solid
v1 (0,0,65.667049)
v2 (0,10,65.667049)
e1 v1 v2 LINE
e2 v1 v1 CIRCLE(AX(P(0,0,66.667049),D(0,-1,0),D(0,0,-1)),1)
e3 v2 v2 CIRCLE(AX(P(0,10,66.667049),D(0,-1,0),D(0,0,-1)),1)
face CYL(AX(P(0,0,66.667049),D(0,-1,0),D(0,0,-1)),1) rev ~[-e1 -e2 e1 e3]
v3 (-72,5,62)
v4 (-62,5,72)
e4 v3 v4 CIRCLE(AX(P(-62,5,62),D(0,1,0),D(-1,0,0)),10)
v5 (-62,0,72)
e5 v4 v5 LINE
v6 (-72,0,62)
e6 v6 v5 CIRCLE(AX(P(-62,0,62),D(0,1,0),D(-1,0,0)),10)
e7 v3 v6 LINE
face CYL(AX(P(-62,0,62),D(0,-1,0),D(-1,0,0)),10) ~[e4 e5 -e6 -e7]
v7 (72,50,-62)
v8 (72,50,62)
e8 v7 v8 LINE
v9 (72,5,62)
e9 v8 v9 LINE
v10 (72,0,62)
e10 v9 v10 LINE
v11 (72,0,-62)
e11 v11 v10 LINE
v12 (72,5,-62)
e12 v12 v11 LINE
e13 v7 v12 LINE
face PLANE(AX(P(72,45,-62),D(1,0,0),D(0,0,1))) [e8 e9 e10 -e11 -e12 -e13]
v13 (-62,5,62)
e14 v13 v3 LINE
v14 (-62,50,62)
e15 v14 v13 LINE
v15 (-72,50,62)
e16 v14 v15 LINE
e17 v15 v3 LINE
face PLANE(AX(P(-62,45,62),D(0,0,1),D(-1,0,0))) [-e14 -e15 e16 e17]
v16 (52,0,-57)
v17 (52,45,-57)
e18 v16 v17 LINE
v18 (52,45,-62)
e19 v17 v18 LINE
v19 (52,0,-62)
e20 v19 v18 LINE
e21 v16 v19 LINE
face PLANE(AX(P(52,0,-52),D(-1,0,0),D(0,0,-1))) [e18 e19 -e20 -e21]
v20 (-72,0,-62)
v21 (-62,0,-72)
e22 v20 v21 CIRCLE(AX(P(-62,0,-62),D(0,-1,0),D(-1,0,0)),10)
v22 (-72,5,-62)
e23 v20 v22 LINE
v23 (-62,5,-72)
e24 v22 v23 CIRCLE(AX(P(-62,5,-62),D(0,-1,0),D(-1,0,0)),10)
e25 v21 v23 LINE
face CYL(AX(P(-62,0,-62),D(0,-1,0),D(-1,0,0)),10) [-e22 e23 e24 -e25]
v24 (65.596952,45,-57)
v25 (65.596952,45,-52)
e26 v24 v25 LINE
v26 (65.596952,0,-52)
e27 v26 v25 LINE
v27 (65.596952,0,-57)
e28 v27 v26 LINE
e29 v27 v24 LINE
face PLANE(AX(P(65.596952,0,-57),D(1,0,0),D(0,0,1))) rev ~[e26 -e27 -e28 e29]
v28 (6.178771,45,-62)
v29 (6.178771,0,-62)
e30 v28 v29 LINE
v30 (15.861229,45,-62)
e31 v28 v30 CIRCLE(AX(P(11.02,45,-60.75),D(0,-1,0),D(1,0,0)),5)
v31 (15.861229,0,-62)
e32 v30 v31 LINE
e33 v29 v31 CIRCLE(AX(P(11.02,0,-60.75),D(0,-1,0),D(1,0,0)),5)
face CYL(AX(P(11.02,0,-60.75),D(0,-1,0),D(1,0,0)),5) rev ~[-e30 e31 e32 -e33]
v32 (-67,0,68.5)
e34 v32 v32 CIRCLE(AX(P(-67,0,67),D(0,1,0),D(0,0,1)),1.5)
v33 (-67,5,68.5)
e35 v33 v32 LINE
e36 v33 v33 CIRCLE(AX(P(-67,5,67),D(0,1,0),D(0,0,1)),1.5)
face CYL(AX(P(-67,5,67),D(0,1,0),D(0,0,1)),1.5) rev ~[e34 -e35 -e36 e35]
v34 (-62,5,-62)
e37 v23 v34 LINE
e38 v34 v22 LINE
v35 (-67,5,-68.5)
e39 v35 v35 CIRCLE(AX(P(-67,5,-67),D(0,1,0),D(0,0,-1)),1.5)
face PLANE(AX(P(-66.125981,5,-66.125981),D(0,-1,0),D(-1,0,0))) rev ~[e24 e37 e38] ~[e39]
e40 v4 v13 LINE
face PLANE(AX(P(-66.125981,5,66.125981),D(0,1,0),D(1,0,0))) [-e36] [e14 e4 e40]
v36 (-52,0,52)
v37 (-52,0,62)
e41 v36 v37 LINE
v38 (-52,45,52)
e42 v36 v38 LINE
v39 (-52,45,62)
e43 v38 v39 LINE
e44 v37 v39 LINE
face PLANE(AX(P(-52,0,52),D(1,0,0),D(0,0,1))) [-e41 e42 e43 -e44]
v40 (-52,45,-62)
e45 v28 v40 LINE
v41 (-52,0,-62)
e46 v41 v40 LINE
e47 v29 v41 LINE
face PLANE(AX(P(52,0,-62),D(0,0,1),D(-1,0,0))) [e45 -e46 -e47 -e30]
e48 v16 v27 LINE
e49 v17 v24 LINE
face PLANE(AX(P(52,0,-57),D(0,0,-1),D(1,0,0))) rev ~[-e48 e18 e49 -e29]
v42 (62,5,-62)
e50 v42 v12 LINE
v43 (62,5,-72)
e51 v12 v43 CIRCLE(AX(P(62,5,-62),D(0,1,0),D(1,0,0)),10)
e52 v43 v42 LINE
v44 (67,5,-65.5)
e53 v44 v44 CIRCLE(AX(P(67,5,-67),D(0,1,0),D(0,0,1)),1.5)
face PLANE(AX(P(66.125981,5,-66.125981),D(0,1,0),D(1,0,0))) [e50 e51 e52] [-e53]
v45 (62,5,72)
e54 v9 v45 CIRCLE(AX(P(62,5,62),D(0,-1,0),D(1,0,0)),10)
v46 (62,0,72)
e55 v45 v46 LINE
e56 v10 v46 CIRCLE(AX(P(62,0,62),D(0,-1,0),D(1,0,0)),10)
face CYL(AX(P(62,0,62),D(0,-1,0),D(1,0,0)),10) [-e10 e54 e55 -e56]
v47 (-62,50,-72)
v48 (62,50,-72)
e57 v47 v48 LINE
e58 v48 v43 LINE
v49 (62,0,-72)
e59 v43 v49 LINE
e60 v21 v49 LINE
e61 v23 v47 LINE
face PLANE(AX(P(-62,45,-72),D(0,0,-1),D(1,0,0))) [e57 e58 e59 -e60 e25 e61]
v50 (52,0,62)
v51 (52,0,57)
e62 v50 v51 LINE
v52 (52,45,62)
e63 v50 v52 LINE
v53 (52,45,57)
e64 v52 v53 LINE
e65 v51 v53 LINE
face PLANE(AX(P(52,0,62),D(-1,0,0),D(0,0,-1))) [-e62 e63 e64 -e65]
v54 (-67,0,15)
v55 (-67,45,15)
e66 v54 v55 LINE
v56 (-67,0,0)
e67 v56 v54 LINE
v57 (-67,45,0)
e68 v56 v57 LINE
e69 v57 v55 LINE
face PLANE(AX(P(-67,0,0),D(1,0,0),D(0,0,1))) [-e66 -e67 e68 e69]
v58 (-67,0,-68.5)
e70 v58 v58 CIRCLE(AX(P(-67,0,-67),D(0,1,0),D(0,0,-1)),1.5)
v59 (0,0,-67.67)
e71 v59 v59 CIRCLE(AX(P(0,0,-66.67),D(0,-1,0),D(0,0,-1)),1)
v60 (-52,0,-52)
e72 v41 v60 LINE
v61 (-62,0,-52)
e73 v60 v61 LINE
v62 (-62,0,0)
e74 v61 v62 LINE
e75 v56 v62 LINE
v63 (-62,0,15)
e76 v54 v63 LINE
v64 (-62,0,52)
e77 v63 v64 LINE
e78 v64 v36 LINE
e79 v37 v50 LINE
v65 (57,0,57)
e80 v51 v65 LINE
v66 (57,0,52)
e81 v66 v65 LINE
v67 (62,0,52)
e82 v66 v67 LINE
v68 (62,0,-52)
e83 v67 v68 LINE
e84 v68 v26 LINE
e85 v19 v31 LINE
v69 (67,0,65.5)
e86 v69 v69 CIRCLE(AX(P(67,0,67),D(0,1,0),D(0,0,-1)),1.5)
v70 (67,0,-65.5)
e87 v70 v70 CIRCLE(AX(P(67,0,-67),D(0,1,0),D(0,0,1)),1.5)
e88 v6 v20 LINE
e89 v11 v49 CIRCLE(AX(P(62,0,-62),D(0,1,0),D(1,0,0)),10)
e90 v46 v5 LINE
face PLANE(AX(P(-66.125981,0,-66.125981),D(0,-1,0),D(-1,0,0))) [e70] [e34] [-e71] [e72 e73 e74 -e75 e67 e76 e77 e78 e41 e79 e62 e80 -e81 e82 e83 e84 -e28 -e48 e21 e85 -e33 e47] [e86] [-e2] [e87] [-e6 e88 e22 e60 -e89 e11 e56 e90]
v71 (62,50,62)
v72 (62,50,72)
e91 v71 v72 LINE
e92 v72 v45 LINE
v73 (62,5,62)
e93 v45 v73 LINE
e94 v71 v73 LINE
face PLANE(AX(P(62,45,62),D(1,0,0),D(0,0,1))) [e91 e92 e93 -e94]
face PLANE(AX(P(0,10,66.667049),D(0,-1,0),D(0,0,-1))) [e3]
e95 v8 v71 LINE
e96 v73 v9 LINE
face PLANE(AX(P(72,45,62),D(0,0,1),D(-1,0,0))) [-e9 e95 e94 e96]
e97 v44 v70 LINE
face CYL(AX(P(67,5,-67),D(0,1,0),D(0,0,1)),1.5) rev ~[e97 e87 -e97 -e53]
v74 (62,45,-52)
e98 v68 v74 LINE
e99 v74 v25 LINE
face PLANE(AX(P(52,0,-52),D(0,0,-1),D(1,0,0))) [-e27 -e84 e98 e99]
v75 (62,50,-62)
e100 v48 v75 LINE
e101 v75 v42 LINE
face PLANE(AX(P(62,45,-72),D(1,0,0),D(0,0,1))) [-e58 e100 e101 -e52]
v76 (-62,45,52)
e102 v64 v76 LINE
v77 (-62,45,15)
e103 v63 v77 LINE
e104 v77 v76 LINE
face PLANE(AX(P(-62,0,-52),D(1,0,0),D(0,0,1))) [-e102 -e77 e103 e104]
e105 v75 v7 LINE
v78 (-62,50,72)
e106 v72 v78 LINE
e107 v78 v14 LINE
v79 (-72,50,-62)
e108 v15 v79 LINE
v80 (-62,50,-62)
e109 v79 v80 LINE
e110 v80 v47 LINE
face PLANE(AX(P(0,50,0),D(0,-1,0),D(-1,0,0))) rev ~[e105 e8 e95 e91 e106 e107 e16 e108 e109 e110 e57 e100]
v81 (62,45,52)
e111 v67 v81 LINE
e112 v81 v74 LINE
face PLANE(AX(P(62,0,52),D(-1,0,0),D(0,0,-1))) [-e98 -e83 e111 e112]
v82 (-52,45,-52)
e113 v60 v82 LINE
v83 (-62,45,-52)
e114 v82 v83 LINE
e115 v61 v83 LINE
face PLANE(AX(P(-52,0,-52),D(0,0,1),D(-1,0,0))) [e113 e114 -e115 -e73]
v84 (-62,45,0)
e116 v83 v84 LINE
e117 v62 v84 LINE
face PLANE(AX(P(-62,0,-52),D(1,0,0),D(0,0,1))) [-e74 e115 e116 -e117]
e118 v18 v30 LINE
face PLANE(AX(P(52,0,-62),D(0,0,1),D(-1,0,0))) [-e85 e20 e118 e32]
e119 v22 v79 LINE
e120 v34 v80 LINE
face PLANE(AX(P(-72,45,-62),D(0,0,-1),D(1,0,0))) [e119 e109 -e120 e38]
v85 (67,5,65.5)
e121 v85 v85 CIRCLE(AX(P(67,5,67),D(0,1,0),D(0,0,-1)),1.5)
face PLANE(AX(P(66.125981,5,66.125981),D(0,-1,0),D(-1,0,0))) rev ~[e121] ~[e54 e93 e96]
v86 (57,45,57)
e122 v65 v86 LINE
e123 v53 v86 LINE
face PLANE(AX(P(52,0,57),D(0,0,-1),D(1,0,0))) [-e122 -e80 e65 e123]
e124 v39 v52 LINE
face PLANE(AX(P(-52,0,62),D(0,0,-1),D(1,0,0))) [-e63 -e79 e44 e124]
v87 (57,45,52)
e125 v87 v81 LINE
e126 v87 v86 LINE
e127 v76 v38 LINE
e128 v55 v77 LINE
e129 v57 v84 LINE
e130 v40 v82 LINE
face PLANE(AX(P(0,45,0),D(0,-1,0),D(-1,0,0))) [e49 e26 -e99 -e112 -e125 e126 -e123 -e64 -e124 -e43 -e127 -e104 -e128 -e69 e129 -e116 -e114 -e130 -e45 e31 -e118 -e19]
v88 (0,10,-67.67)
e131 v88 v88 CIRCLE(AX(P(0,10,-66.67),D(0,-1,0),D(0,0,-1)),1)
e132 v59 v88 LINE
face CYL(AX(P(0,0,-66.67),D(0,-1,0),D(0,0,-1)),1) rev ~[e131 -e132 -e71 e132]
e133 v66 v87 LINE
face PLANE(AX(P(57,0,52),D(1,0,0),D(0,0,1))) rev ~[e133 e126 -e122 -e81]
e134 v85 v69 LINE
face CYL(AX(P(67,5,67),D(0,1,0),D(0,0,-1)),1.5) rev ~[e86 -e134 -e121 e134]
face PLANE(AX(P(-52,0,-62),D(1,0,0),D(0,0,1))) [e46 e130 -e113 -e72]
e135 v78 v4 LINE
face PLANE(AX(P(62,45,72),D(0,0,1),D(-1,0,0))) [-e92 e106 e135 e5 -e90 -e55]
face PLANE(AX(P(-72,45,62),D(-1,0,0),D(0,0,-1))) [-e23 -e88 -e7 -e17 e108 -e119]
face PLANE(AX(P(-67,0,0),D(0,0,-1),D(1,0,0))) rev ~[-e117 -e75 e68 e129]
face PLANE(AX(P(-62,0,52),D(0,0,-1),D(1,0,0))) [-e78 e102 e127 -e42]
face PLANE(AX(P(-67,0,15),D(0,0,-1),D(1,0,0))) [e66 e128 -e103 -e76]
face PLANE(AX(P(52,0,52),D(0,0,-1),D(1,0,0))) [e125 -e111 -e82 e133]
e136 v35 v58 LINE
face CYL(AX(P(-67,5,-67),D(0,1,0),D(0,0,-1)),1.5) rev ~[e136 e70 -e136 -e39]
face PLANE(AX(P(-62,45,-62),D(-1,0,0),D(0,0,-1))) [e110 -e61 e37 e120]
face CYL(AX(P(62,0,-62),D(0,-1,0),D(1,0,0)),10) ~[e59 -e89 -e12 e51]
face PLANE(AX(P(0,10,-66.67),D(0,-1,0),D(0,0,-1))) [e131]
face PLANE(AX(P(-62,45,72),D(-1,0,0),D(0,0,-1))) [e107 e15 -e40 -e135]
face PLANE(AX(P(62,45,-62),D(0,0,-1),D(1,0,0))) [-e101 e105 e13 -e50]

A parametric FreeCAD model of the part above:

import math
import FreeCAD as App
import Part
import Sketcher

V = App.Vector
Q = App.Units.Quantity


def add_polygon(sketch, points):
    """Adds a closed chain of lines whose ends are joined by coincident constraints."""
    first, n = sketch.GeometryCount, len(points)
    for a, b in zip(points, points[1:] + points[:1]):
        sketch.addGeometry(Part.LineSegment(App.Vector(*a, 0), App.Vector(*b, 0)), False)
    for i in range(n):
        sketch.addConstraint(Sketcher.Constraint("Coincident", first + i, 2, first + (i + 1) % n, 1))

doc = App.newDocument("Part")
body = doc.addObject("PartDesign::Body", "Body")

sketch1 = body.newObject("Sketcher::SketchObject", "Sketch")
sketch1.AttachmentSupport = (doc.getObject("XZ_Plane"), [""])
sketch1.MapMode = "FlatFace"
add_polygon(sketch1, [(62, -72), (-62, -72), (-62, -62), (-72, -62), (-72, 62), (-62, 62), (-62, 72), (62, 72), (62, 62), (72, 62), (72, -62), (62, -62)])
add_polygon(sketch1, [(-62, -52), (-52, -52), (-52, -62), (52, -62), (52, -52), (62, -52), (62, 52), (52, 52), (52, 62), (-52, 62), (-52, 52), (-62, 52)])
sketch1.addConstraint([
    Sketcher.Constraint("Horizontal", 0),
    Sketcher.Constraint("Vertical", 1),
    Sketcher.Constraint("Horizontal", 2),
    Sketcher.Constraint("Vertical", 3),
    Sketcher.Constraint("Horizontal", 4),
    Sketcher.Constraint("Vertical", 5),
    Sketcher.Constraint("Horizontal", 6),
    Sketcher.Constraint("Vertical", 7),
    Sketcher.Constraint("Horizontal", 8),
    Sketcher.Constraint("Vertical", 9),
    Sketcher.Constraint("Horizontal", 10),
    Sketcher.Constraint("Vertical", 11),
    Sketcher.Constraint("Horizontal", 12),
    Sketcher.Constraint("Vertical", 13),
    Sketcher.Constraint("Horizontal", 14),
    Sketcher.Constraint("Vertical", 15),
    Sketcher.Constraint("Horizontal", 16),
    Sketcher.Constraint("Vertical", 17),
    Sketcher.Constraint("Horizontal", 18),
    Sketcher.Constraint("Vertical", 19),
    Sketcher.Constraint("Horizontal", 20),
    Sketcher.Constraint("Vertical", 21),
    Sketcher.Constraint("Horizontal", 22),
    Sketcher.Constraint("Vertical", 23),
    Sketcher.Constraint("Symmetric", 0, 2, 6, 2, -1, 1),
    Sketcher.Constraint("Symmetric", 2, 2, 8, 2, -1, 1),
    Sketcher.Constraint("Symmetric", 4, 2, 10, 2, -1, 1),
    Sketcher.Constraint("Symmetric", 12, 2, 18, 2, -1, 1),
    Sketcher.Constraint("Symmetric", 14, 2, 20, 2, -1, 1),
    Sketcher.Constraint("Symmetric", 16, 2, 22, 2, -1, 1),
    Sketcher.Constraint("Symmetric", 4, 2, 7, 2, -2),
    Sketcher.Constraint("Symmetric", 12, 2, 15, 2, -2),
    Sketcher.Constraint("Horizontal", 10, 2, 13, 2),
    Sketcher.Constraint("Vertical", 11, 2, 16, 2),
    Sketcher.Constraint("Equal", 10, 12),
    Sketcher.Constraint("Equal", 22, 1),
    Sketcher.Constraint("Equal", 6, 3),
    Sketcher.Constraint("Equal", 11, 13),
    Sketcher.Constraint("DistanceX", 0, 2, 0, 1, Q("124 mm")),
    Sketcher.Constraint("DistanceX", 2, 2, 2, 1, Q("10 mm")),
])
pad1 = body.newObject("PartDesign::Pad", "Pad")
pad1.Profile = sketch1
pad1.Length = 45
pad1.Reversed = True

sketch2 = body.newObject("Sketcher::SketchObject", "Sketch001")
sketch2.AttachmentSupport = (doc.getObject("XZ_Plane"), [""])
sketch2.MapMode = "FlatFace"
sketch2.AttachmentOffset = App.Placement(V(0, 0, -45), App.Rotation())
add_polygon(sketch2, [(62, -72), (-62, -72), (-62, -62), (-72, -62), (-72, 62), (-62, 62), (-62, 72), (62, 72), (62, 62), (72, 62), (72, -62), (62, -62)])
sketch2.addConstraint([
    Sketcher.Constraint("Horizontal", 0),
    Sketcher.Constraint("Vertical", 1),
    Sketcher.Constraint("Horizontal", 2),
    Sketcher.Constraint("Vertical", 3),
    Sketcher.Constraint("Horizontal", 4),
    Sketcher.Constraint("Vertical", 5),
    Sketcher.Constraint("Horizontal", 6),
    Sketcher.Constraint("Vertical", 7),
    Sketcher.Constraint("Horizontal", 8),
    Sketcher.Constraint("Vertical", 9),
    Sketcher.Constraint("Horizontal", 10),
    Sketcher.Constraint("Vertical", 11),
    Sketcher.Constraint("Symmetric", 0, 2, 6, 2, -1, 1),
    Sketcher.Constraint("Symmetric", 2, 2, 8, 2, -1, 1),
    Sketcher.Constraint("Symmetric", 4, 2, 10, 2, -1, 1),
    Sketcher.Constraint("Symmetric", 4, 2, 7, 2, -2),
    Sketcher.Constraint("Equal", 10, 1),
    Sketcher.Constraint("Equal", 6, 3),
    Sketcher.Constraint("DistanceX", 0, 2, 0, 1, Q("124 mm")),
    Sketcher.Constraint("DistanceX", 2, 2, 2, 1, Q("10 mm")),
])
pad2 = body.newObject("PartDesign::Pad", "Pad001")
pad2.Profile = sketch2
pad2.Length = 5
pad2.Reversed = True

sketch3 = body.newObject("Sketcher::SketchObject", "Sketch002")
sketch3.AttachmentSupport = (doc.getObject("XZ_Plane"), [""])
sketch3.MapMode = "FlatFace"
add_polygon(sketch3, [(52, 57), (52, 52), (57, 52), (57, 57)])
add_polygon(sketch3, [(-67, 15), (-67, 0), (-62, 0), (-62, 15)])
add_polygon(sketch3, [(52, -52), (52, -57), (66, -57), (66, -52)])
sketch3.addConstraint([
    Sketcher.Constraint("Vertical", 0),
    Sketcher.Constraint("Horizontal", 1),
    Sketcher.Constraint("Vertical", 2),
    Sketcher.Constraint("Horizontal", 3),
    Sketcher.Constraint("Vertical", 4),
    Sketcher.Constraint("Horizontal", 5),
    Sketcher.Constraint("Vertical", 6),
    Sketcher.Constraint("Horizontal", 7),
    Sketcher.Constraint("Vertical", 8),
    Sketcher.Constraint("Horizontal", 9),
    Sketcher.Constraint("Vertical", 10),
    Sketcher.Constraint("Horizontal", 11),
    Sketcher.Constraint("Symmetric", 3, 2, 8, 2, -1),
    Sketcher.Constraint("PointOnObject", 4, 2, -1),
    Sketcher.Constraint("Equal", 3, 5),
    Sketcher.Constraint("Equal", 7, 0),
    Sketcher.Constraint("Equal", 2, 8),
    Sketcher.Constraint("DistanceX", 1, 1, 1, 2, Q("5 mm")),
    Sketcher.Constraint("DistanceY", 4, 2, 4, 1, Q("15 mm")),
    Sketcher.Constraint("DistanceX", -1, 1, 0, 2, Q("52 mm")),
    Sketcher.Constraint("DistanceY", -1, 1, 0, 2, Q("52 mm")),
    Sketcher.Constraint("DistanceX", 4, 2, -1, 1, Q("67 mm")),
    Sketcher.Constraint("DistanceX", 9, 1, 9, 2, Q("13.596952 mm")),
])
pocket1 = body.newObject("PartDesign::Pocket", "Pocket")
pocket1.Profile = sketch3
pocket1.Length = 45

sketch4 = body.newObject("Sketcher::SketchObject", "Sketch003")
sketch4.AttachmentSupport = (doc.getObject("XZ_Plane"), [""])
sketch4.MapMode = "FlatFace"
sketch4.addGeometry(Part.Circle(V(11, -61, 0), V(0, 0, 1), 5), False)
sketch4.addConstraint([
    Sketcher.Constraint("Diameter", 0, Q("10 mm")),
    Sketcher.Constraint("DistanceX", -1, 1, 0, 3, Q("11.02 mm")),
    Sketcher.Constraint("DistanceY", 0, 3, -1, 1, Q("60.75 mm")),
])
pocket2 = body.newObject("PartDesign::Pocket", "Pocket001")
pocket2.Profile = sketch4
pocket2.Length = 45

sketch5 = body.newObject("Sketcher::SketchObject", "Sketch004")
sketch5.AttachmentSupport = (doc.getObject("XZ_Plane"), [""])
sketch5.MapMode = "FlatFace"
sketch5.addGeometry([
    Part.Circle(V(0, 66.7, 0), V(0, 0, 1), 1),
    Part.Circle(V(0, -66.7, 0), V(0, 0, 1), 1),
], False)
sketch5.addConstraint([
    Sketcher.Constraint("Equal", 0, 1),
    Sketcher.Constraint("PointOnObject", 0, 3, -2),
    Sketcher.Constraint("PointOnObject", 1, 3, -2),
    Sketcher.Constraint("Diameter", 0, Q("2 mm")),
    Sketcher.Constraint("DistanceY", 1, 3, -1, 1, Q("66.67 mm")),
    Sketcher.Constraint("DistanceY", -1, 1, 0, 3, Q("66.667049 mm")),
])
pocket3 = body.newObject("PartDesign::Pocket", "Pocket002")
pocket3.Profile = sketch5
pocket3.Length = 10

sketch6 = body.newObject("Sketcher::SketchObject", "Sketch005")
sketch6.AttachmentSupport = (doc.getObject("XZ_Plane"), [""])
sketch6.MapMode = "FlatFace"
sketch6.addGeometry([
    Part.LineSegment(V(-62, -72, 0), V(-62, -62, 0)),
    Part.LineSegment(V(-62, -62, 0), V(-72, -62, 0)),
    Part.ArcOfCircle(Part.Circle(V(-62, -62, 0), V(0, 0, 1), 10), math.radians(180), math.radians(270)),
    Part.LineSegment(V(-62, 62, 0), V(-62, 72, 0)),
    Part.ArcOfCircle(Part.Circle(V(-62, 62, 0), V(0, 0, 1), 10), math.radians(90), math.radians(180)),
    Part.LineSegment(V(-72, 62, 0), V(-62, 62, 0)),
    Part.LineSegment(V(62, 62, 0), V(72, 62, 0)),
    Part.ArcOfCircle(Part.Circle(V(62, 62, 0), V(0, 0, 1), 10), math.radians(0), math.radians(90)),
    Part.LineSegment(V(62, 72, 0), V(62, 62, 0)),
    Part.LineSegment(V(72, -62, 0), V(62, -62, 0)),
    Part.LineSegment(V(62, -62, 0), V(62, -72, 0)),
    Part.ArcOfCircle(Part.Circle(V(62, -62, 0), V(0, 0, 1), 10), math.radians(-90), math.radians(0)),
], False)
sketch6.addConstraint([
    Sketcher.Constraint("Coincident", 0, 2, 1, 1),
    Sketcher.Constraint("Coincident", 1, 2, 2, 1),
    Sketcher.Constraint("Coincident", 2, 2, 0, 1),
    Sketcher.Constraint("Coincident", 3, 2, 4, 1),
    Sketcher.Constraint("Coincident", 4, 2, 5, 1),
    Sketcher.Constraint("Coincident", 5, 2, 3, 1),
    Sketcher.Constraint("Coincident", 6, 2, 7, 1),
    Sketcher.Constraint("Coincident", 7, 2, 8, 1),
    Sketcher.Constraint("Coincident", 8, 2, 6, 1),
    Sketcher.Constraint("Coincident", 9, 2, 10, 1),
    Sketcher.Constraint("Coincident", 10, 2, 11, 1),
    Sketcher.Constraint("Coincident", 11, 2, 9, 1),
    Sketcher.Constraint("Vertical", 0),
    Sketcher.Constraint("Horizontal", 1),
    Sketcher.Constraint("Vertical", 3),
    Sketcher.Constraint("Horizontal", 5),
    Sketcher.Constraint("Horizontal", 6),
    Sketcher.Constraint("Vertical", 8),
    Sketcher.Constraint("Horizontal", 9),
    Sketcher.Constraint("Vertical", 10),
    Sketcher.Constraint("Coincident", 0, 2, 2, 3),
    Sketcher.Constraint("Coincident", 5, 2, 4, 3),
    Sketcher.Constraint("Coincident", 8, 2, 7, 3),
    Sketcher.Constraint("Coincident", 9, 2, 11, 3),
    Sketcher.Constraint("Equal", 2, 4),
    Sketcher.Constraint("Equal", 4, 7),
    Sketcher.Constraint("Equal", 7, 11),
    Sketcher.Constraint("Symmetric", 2, 3, 7, 3, -1, 1),
    Sketcher.Constraint("Symmetric", 4, 3, 11, 3, -1, 1),
    Sketcher.Constraint("Symmetric", 4, 3, 7, 3, -2),
    Sketcher.Constraint("Radius", 2, Q("10 mm")),
    Sketcher.Constraint("DistanceX", 2, 3, -1, 1, Q("62 mm")),
    Sketcher.Constraint("DistanceY", 2, 3, -1, 1, Q("62 mm")),
])
pad3 = body.newObject("PartDesign::Pad", "Pad002")
pad3.Profile = sketch6
pad3.Length = 5
pad3.Reversed = True

sketch7 = body.newObject("Sketcher::SketchObject", "Sketch006")
sketch7.AttachmentSupport = (doc.getObject("XZ_Plane"), [""])
sketch7.MapMode = "FlatFace"
sketch7.AttachmentOffset = App.Placement(V(0, 0, -5), App.Rotation())
sketch7.addGeometry([
    Part.Circle(V(-67, 67, 0), V(0, 0, 1), 1.5),
    Part.Circle(V(67, 67, 0), V(0, 0, 1), 1.5),
    Part.Circle(V(67, -67, 0), V(0, 0, 1), 1.5),
    Part.Circle(V(-67, -67, 0), V(0, 0, 1), 1.5),
], False)
sketch7.addConstraint([
    Sketcher.Constraint("Equal", 0, 1),
    Sketcher.Constraint("Equal", 1, 2),
    Sketcher.Constraint("Equal", 2, 3),
    Sketcher.Constraint("Symmetric", 0, 3, 2, 3, -1, 1),
    Sketcher.Constraint("Symmetric", 1, 3, 3, 3, -1, 1),
    Sketcher.Constraint("Symmetric", 0, 3, 1, 3, -2),
    Sketcher.Constraint("Diameter", 0, Q("3 mm")),
    Sketcher.Constraint("DistanceX", 0, 3, -1, 1, Q("67 mm")),
    Sketcher.Constraint("DistanceY", -1, 1, 0, 3, Q("67 mm")),
])
pocket4 = body.newObject("PartDesign::Pocket", "Pocket003")
pocket4.Profile = sketch7
pocket4.Length = 5
pocket4.Reversed = True

doc.recompute()
